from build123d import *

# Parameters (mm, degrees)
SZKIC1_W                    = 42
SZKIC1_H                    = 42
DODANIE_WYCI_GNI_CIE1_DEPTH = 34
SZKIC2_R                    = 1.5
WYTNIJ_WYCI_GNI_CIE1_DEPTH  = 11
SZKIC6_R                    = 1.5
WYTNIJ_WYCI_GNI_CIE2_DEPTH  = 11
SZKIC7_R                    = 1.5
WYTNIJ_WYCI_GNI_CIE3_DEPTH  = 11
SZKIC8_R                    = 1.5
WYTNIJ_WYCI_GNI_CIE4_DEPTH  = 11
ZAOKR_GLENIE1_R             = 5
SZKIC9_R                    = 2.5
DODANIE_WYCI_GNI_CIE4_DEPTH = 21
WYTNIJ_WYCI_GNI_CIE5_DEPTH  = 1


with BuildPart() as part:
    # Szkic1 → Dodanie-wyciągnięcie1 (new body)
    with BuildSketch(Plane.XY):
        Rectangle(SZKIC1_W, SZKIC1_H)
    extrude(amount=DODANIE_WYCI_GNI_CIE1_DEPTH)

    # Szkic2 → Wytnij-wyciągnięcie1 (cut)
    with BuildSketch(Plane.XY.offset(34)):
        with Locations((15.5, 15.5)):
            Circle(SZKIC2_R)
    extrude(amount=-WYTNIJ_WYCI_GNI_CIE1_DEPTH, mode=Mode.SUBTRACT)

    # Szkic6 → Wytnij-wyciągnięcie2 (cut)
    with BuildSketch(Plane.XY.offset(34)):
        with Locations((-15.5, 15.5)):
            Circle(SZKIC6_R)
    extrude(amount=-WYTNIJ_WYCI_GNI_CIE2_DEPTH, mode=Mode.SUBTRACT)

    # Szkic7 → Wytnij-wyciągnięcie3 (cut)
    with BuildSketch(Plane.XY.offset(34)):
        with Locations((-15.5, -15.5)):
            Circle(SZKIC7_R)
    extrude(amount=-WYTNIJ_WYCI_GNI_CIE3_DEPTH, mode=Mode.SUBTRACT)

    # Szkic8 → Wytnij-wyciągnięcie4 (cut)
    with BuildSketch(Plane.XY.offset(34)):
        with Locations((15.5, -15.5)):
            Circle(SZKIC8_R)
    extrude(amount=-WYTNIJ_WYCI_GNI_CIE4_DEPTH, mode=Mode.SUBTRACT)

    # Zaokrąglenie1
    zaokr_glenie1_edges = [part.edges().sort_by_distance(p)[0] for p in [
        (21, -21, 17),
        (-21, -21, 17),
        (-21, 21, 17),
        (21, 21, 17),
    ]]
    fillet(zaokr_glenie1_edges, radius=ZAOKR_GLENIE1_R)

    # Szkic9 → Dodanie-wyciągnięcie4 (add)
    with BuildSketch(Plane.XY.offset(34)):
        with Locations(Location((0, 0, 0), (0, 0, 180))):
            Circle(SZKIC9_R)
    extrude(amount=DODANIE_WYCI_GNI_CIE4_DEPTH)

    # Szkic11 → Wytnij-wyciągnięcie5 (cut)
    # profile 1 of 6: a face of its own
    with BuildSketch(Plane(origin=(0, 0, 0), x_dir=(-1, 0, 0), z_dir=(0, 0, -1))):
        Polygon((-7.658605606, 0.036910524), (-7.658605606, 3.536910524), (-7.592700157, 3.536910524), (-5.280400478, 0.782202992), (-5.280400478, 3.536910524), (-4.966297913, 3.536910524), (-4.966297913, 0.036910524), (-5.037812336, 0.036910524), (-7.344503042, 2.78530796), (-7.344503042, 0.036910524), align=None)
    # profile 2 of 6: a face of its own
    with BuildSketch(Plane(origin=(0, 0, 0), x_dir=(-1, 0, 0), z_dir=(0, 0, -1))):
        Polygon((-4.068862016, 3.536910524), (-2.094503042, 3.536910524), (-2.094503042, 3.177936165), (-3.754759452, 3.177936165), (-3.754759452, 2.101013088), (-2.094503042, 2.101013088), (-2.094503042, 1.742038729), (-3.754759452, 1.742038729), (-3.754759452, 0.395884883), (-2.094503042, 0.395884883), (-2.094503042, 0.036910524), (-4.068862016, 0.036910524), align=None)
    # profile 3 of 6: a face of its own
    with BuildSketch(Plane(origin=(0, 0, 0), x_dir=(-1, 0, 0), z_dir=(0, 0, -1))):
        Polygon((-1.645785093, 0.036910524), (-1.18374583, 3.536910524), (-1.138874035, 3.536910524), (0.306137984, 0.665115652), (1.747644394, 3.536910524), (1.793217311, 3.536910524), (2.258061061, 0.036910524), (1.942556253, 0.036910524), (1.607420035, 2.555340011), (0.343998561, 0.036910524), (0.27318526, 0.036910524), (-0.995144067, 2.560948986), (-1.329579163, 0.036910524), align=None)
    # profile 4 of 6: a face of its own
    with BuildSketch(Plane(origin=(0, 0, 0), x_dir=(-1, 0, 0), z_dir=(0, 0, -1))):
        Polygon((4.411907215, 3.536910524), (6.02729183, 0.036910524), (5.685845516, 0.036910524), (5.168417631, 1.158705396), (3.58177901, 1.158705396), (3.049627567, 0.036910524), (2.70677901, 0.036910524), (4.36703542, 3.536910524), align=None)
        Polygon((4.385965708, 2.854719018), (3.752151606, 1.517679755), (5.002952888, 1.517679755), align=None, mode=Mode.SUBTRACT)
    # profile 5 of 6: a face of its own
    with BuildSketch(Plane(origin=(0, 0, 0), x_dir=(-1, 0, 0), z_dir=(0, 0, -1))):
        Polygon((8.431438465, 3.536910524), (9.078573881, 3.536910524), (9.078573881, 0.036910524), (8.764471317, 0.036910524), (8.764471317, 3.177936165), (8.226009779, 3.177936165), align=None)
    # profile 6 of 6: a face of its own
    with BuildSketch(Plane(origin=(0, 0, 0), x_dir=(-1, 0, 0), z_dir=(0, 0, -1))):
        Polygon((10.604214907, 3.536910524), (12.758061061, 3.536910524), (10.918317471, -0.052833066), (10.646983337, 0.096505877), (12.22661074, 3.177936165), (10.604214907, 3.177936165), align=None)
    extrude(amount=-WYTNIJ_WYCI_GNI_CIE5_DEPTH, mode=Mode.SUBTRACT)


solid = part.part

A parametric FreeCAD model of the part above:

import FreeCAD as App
import Part
import Sketcher
Q = App.Units.Quantity


def edges_at(feature, points):
    """Names of the edges that pass closest to the given points."""
    edges = feature.Shape.Edges
    near = lambda p: min(range(len(edges)), key=lambda i: edges[i].distToShape(Part.Vertex(*p))[0])
    return sorted({f"Edge{near(p) + 1}" for p in points})

doc = App.newDocument("Part")
params = doc.addObject("Spreadsheet::Sheet", "Params")
for row, (alias, value) in enumerate([
    ("sketch1_width", "42 mm"),
    ("pad1_length", "34 mm"),
    ("sketch2_diameter", "3 mm"),
    ("pocket1_length", "11 mm"),
    ("sketch3_diameter", "3 mm"),
    ("pocket2_length", "11 mm"),
    ("sketch4_diameter", "3 mm"),
    ("pocket3_length", "11 mm"),
    ("sketch5_diameter", "3 mm"),
    ("pocket4_length", "11 mm"),
    ("fillet_radius", "5 mm"),
    ("sketch6_diameter", "5 mm"),
    ("pad2_length", "21 mm"),
    ("sketch7_height", "3.5 mm"),
    ("pocket5_length", "1 mm"),
], start=1):
    params.set(f"A{row}", alias)
    params.set(f"B{row}", "=" + value)
    params.setAlias(f"B{row}", alias)

body = doc.addObject("PartDesign::Body", "Body")

# Sketch on XY plane
sketch1 = body.newObject("Sketcher::SketchObject", "Sketch")
sketch1.AttachmentSupport = (doc.getObject("XY_Plane"), [""])
sketch1.MapMode = "FlatFace"
sketch1.addGeometry([
    Part.LineSegment(App.Vector(-21, 21, 0), App.Vector(-21, -21, 0)),
    Part.LineSegment(App.Vector(-21, -21, 0), App.Vector(21, -21, 0)),
    Part.LineSegment(App.Vector(21, -21, 0), App.Vector(21, 21, 0)),
    Part.LineSegment(App.Vector(21, 21, 0), App.Vector(-21, 21, 0)),
], False)
sketch1.addConstraint([
    Sketcher.Constraint("Coincident", 0, 2, 1, 1),
    Sketcher.Constraint("Coincident", 1, 2, 2, 1),
    Sketcher.Constraint("Coincident", 2, 2, 3, 1),
    Sketcher.Constraint("Coincident", 3, 2, 0, 1),
    Sketcher.Constraint("Vertical", 0),
    Sketcher.Constraint("Horizontal", 1),
    Sketcher.Constraint("Vertical", 2),
    Sketcher.Constraint("Horizontal", 3),
    Sketcher.Constraint("Symmetric", 0, 2, 2, 2, -1, 1),
    Sketcher.Constraint("Equal", 3, 0),
    Sketcher.Constraint("DistanceX", 1, 1, 1, 2, 42.0),
])
sketch1.setExpression("Constraints[10]", "Params.sketch1_width")
pad1 = body.newObject("PartDesign::Pad", "Pad")
pad1.Profile = sketch1
pad1.setExpression("Length", "Params.pad1_length")

# Sketch on XY plane
sketch2 = body.newObject("Sketcher::SketchObject", "Sketch001")
sketch2.AttachmentSupport = (doc.getObject("XY_Plane"), [""])
sketch2.MapMode = "FlatFace"
sketch2.AttachmentOffset = App.Placement(App.Vector(0, 0, 34), App.Rotation())
sketch2.addGeometry(Part.Circle(App.Vector(15.5, 15.5, 0), App.Vector(0, 0, 1), 1.5), False)
sketch2.addConstraint([
    Sketcher.Constraint("Diameter", 0, 3.0),
    Sketcher.Constraint("DistanceX", -1, 1, 0, 3, 15.5),
    Sketcher.Constraint("DistanceY", -1, 1, 0, 3, 15.5),
])
sketch2.setExpression("Constraints[0]", "Params.sketch2_diameter")
pocket1 = body.newObject("PartDesign::Pocket", "Pocket")
pocket1.Profile = sketch2
pocket1.setExpression("Length", "Params.pocket1_length")

# Sketch on XY plane
sketch3 = body.newObject("Sketcher::SketchObject", "Sketch002")
sketch3.AttachmentSupport = (doc.getObject("XY_Plane"), [""])
sketch3.MapMode = "FlatFace"
sketch3.AttachmentOffset = App.Placement(App.Vector(0, 0, 34), App.Rotation())
sketch3.addGeometry(Part.Circle(App.Vector(-15.5, 15.5, 0), App.Vector(0, 0, 1), 1.5), False)
sketch3.addConstraint([
    Sketcher.Constraint("Diameter", 0, 3.0),
    Sketcher.Constraint("DistanceX", 0, 3, -1, 1, 15.5),
    Sketcher.Constraint("DistanceY", -1, 1, 0, 3, 15.5),
])
sketch3.setExpression("Constraints[0]", "Params.sketch3_diameter")
pocket2 = body.newObject("PartDesign::Pocket", "Pocket001")
pocket2.Profile = sketch3
pocket2.setExpression("Length", "Params.pocket2_length")

# Sketch on XY plane
sketch4 = body.newObject("Sketcher::SketchObject", "Sketch003")
sketch4.AttachmentSupport = (doc.getObject("XY_Plane"), [""])
sketch4.MapMode = "FlatFace"
sketch4.AttachmentOffset = App.Placement(App.Vector(0, 0, 34), App.Rotation())
sketch4.addGeometry(Part.Circle(App.Vector(-15.5, -15.5, 0), App.Vector(0, 0, 1), 1.5), False)
sketch4.addConstraint([
    Sketcher.Constraint("Diameter", 0, 3.0),
    Sketcher.Constraint("DistanceX", 0, 3, -1, 1, 15.5),
    Sketcher.Constraint("DistanceY", 0, 3, -1, 1, 15.5),
])
sketch4.setExpression("Constraints[0]", "Params.sketch4_diameter")
pocket3 = body.newObject("PartDesign::Pocket", "Pocket002")
pocket3.Profile = sketch4
pocket3.setExpression("Length", "Params.pocket3_length")

# Sketch on XY plane
sketch5 = body.newObject("Sketcher::SketchObject", "Sketch004")
sketch5.AttachmentSupport = (doc.getObject("XY_Plane"), [""])
sketch5.MapMode = "FlatFace"
sketch5.AttachmentOffset = App.Placement(App.Vector(0, 0, 34), App.Rotation())
sketch5.addGeometry(Part.Circle(App.Vector(15.5, -15.5, 0), App.Vector(0, 0, 1), 1.5), False)
sketch5.addConstraint([
    Sketcher.Constraint("Diameter", 0, 3.0),
    Sketcher.Constraint("DistanceX", -1, 1, 0, 3, 15.5),
    Sketcher.Constraint("DistanceY", 0, 3, -1, 1, 15.5),
])
sketch5.setExpression("Constraints[0]", "Params.sketch5_diameter")
pocket4 = body.newObject("PartDesign::Pocket", "Pocket003")
pocket4.Profile = sketch5
pocket4.setExpression("Length", "Params.pocket4_length")
doc.recompute()

fillet = body.newObject("PartDesign::Fillet", "Fillet")
fillet.Base = (pocket4, edges_at(pocket4, [
    (21, -21, 17),
    (-21, -21, 17),
    (-21, 21, 17),
    (21, 21, 17),
]))
fillet.setExpression("Radius", "Params.fillet_radius")

# Sketch on XY plane
sketch6 = body.newObject("Sketcher::SketchObject", "Sketch005")
sketch6.AttachmentSupport = (doc.getObject("XY_Plane"), [""])
sketch6.MapMode = "FlatFace"
sketch6.AttachmentOffset = App.Placement(App.Vector(0, 0, 34), App.Rotation())
sketch6.addGeometry(Part.Circle(App.Vector(0, 0, 0), App.Vector(0, 0, 1), 2.5), False)
sketch6.addConstraint([
    Sketcher.Constraint("Coincident", 0, 3, -1, 1),
    Sketcher.Constraint("Diameter", 0, 5.0),
])
sketch6.setExpression("Constraints[1]", "Params.sketch6_diameter")
pad2 = body.newObject("PartDesign::Pad", "Pad001")
pad2.Profile = sketch6
pad2.setExpression("Length", "Params.pad2_length")

# Sketch on XY plane
sketch7 = body.newObject("Sketcher::SketchObject", "Sketch006")
sketch7.AttachmentSupport = (doc.getObject("XY_Plane"), [""])
sketch7.MapMode = "FlatFace"
sketch7.addGeometry([
    Part.LineSegment(App.Vector(7.658606, 3.536911, 0), App.Vector(7.658606, 0.036911, 0)),  # 0
    Part.LineSegment(App.Vector(7.658606, 0.036911, 0), App.Vector(7.344503, 0.036911, 0)),  # 1
    Part.LineSegment(App.Vector(7.344503, 0.036911, 0), App.Vector(7.344503, 2.785308, 0)),  # 2
    Part.LineSegment(App.Vector(7.344503, 2.785308, 0), App.Vector(5.037812, 0.036911, 0)),  # 3
    Part.LineSegment(App.Vector(5.037812, 0.036911, 0), App.Vector(4.966298, 0.036911, 0)),  # 4
    Part.LineSegment(App.Vector(4.966298, 0.036911, 0), App.Vector(4.966298, 3.536911, 0)),  # 5
    Part.LineSegment(App.Vector(4.966298, 3.536911, 0), App.Vector(5.2804, 3.536911, 0)),  # 6
    Part.LineSegment(App.Vector(5.2804, 3.536911, 0), App.Vector(5.2804, 0.782203, 0)),  # 7
    Part.LineSegment(App.Vector(5.2804, 0.782203, 0), App.Vector(7.5927, 3.536911, 0)),  # 8
    Part.LineSegment(App.Vector(7.5927, 3.536911, 0), App.Vector(7.658606, 3.536911, 0)),  # 9
    Part.LineSegment(App.Vector(2.094503, 3.536911, 0), App.Vector(4.068862, 3.536911, 0)),  # 10
    Part.LineSegment(App.Vector(4.068862, 3.536911, 0), App.Vector(4.068862, 0.036911, 0)),  # 11
    Part.LineSegment(App.Vector(4.068862, 0.036911, 0), App.Vector(2.094503, 0.036911, 0)),  # 12
    Part.LineSegment(App.Vector(2.094503, 0.036911, 0), App.Vector(2.094503, 0.395885, 0)),  # 13
    Part.LineSegment(App.Vector(2.094503, 0.395885, 0), App.Vector(3.754759, 0.395885, 0)),  # 14
    Part.LineSegment(App.Vector(3.754759, 0.395885, 0), App.Vector(3.754759, 1.742039, 0)),  # 15
    Part.LineSegment(App.Vector(3.754759, 1.742039, 0), App.Vector(2.094503, 1.742039, 0)),  # 16
    Part.LineSegment(App.Vector(2.094503, 1.742039, 0), App.Vector(2.094503, 2.101013, 0)),  # 17
    Part.LineSegment(App.Vector(2.094503, 2.101013, 0), App.Vector(3.754759, 2.101013, 0)),  # 18
    Part.LineSegment(App.Vector(3.754759, 2.101013, 0), App.Vector(3.754759, 3.177936, 0)),  # 19
    Part.LineSegment(App.Vector(3.754759, 3.177936, 0), App.Vector(2.094503, 3.177936, 0)),  # 20
    Part.LineSegment(App.Vector(2.094503, 3.177936, 0), App.Vector(2.094503, 3.536911, 0)),  # 21
    Part.LineSegment(App.Vector(1.183746, 3.536911, 0), App.Vector(1.645785, 0.036911, 0)),  # 22
    Part.LineSegment(App.Vector(1.645785, 0.036911, 0), App.Vector(1.329579, 0.036911, 0)),  # 23
    Part.LineSegment(App.Vector(1.329579, 0.036911, 0), App.Vector(0.995144, 2.560949, 0)),  # 24
    Part.LineSegment(App.Vector(0.995144, 2.560949, 0), App.Vector(-0.273185, 0.036911, 0)),  # 25
    Part.LineSegment(App.Vector(-0.273185, 0.036911, 0), App.Vector(-0.343999, 0.036911, 0)),  # 26
    Part.LineSegment(App.Vector(-0.343999, 0.036911, 0), App.Vector(-1.60742, 2.55534, 0)),  # 27
    Part.LineSegment(App.Vector(-1.60742, 2.55534, 0), App.Vector(-1.942556, 0.036911, 0)),  # 28
    Part.LineSegment(App.Vector(-1.942556, 0.036911, 0), App.Vector(-2.258061, 0.036911, 0)),  # 29
    Part.LineSegment(App.Vector(-2.258061, 0.036911, 0), App.Vector(-1.793217, 3.536911, 0)),  # 30
    Part.LineSegment(App.Vector(-1.793217, 3.536911, 0), App.Vector(-1.747644, 3.536911, 0)),  # 31
    Part.LineSegment(App.Vector(-1.747644, 3.536911, 0), App.Vector(-0.306138, 0.665116, 0)),  # 32
    Part.LineSegment(App.Vector(-0.306138, 0.665116, 0), App.Vector(1.138874, 3.536911, 0)),  # 33
    Part.LineSegment(App.Vector(1.138874, 3.536911, 0), App.Vector(1.183746, 3.536911, 0)),  # 34
    Part.LineSegment(App.Vector(-6.027292, 0.036911, 0), App.Vector(-4.411907, 3.536911, 0)),  # 35
    Part.LineSegment(App.Vector(-4.411907, 3.536911, 0), App.Vector(-4.367035, 3.536911, 0)),  # 36
    Part.LineSegment(App.Vector(-4.367035, 3.536911, 0), App.Vector(-2.706779, 0.036911, 0)),  # 37
    Part.LineSegment(App.Vector(-2.706779, 0.036911, 0), App.Vector(-3.049628, 0.036911, 0)),  # 38
    Part.LineSegment(App.Vector(-3.049628, 0.036911, 0), App.Vector(-3.581779, 1.158705, 0)),  # 39
    Part.LineSegment(App.Vector(-3.581779, 1.158705, 0), App.Vector(-5.168418, 1.158705, 0)),  # 40
    Part.LineSegment(App.Vector(-5.168418, 1.158705, 0), App.Vector(-5.685846, 0.036911, 0)),  # 41
    Part.LineSegment(App.Vector(-5.685846, 0.036911, 0), App.Vector(-6.027292, 0.036911, 0)),  # 42
    Part.LineSegment(App.Vector(-4.385966, 2.854719, 0), App.Vector(-5.002953, 1.51768, 0)),  # 43
    Part.LineSegment(App.Vector(-5.002953, 1.51768, 0), App.Vector(-3.752152, 1.51768, 0)),  # 44
    Part.LineSegment(App.Vector(-3.752152, 1.51768, 0), App.Vector(-4.385966, 2.854719, 0)),  # 45
    Part.LineSegment(App.Vector(-9.078574, 3.536911, 0), App.Vector(-8.431438, 3.536911, 0)),  # 46
    Part.LineSegment(App.Vector(-8.431438, 3.536911, 0), App.Vector(-8.22601, 3.177936, 0)),  # 47
    Part.LineSegment(App.Vector(-8.22601, 3.177936, 0), App.Vector(-8.764471, 3.177936, 0)),  # 48
    Part.LineSegment(App.Vector(-8.764471, 3.177936, 0), App.Vector(-8.764471, 0.036911, 0)),  # 49
    Part.LineSegment(App.Vector(-8.764471, 0.036911, 0), App.Vector(-9.078574, 0.036911, 0)),  # 50
    Part.LineSegment(App.Vector(-9.078574, 0.036911, 0), App.Vector(-9.078574, 3.536911, 0)),  # 51
    Part.LineSegment(App.Vector(-12.758061, 3.536911, 0), App.Vector(-10.604215, 3.536911, 0)),  # 52
    Part.LineSegment(App.Vector(-10.604215, 3.536911, 0), App.Vector(-10.604215, 3.177936, 0)),  # 53
    Part.LineSegment(App.Vector(-10.604215, 3.177936, 0), App.Vector(-12.226611, 3.177936, 0)),  # 54
    Part.LineSegment(App.Vector(-12.226611, 3.177936, 0), App.Vector(-10.646983, 0.096506, 0)),  # 55
    Part.LineSegment(App.Vector(-10.646983, 0.096506, 0), App.Vector(-10.918317, -0.052833, 0)),  # 56
    Part.LineSegment(App.Vector(-10.918317, -0.052833, 0), App.Vector(-12.758061, 3.536911, 0)),  # 57
], False)
sketch7.addConstraint([
    Sketcher.Constraint("Coincident", 0, 2, 1, 1),
    Sketcher.Constraint("Coincident", 1, 2, 2, 1),
    Sketcher.Constraint("Coincident", 2, 2, 3, 1),
    Sketcher.Constraint("Coincident", 3, 2, 4, 1),
    Sketcher.Constraint("Coincident", 4, 2, 5, 1),
    Sketcher.Constraint("Coincident", 5, 2, 6, 1),
    Sketcher.Constraint("Coincident", 6, 2, 7, 1),
    Sketcher.Constraint("Coincident", 7, 2, 8, 1),
    Sketcher.Constraint("Coincident", 8, 2, 9, 1),
    Sketcher.Constraint("Coincident", 9, 2, 0, 1),
    Sketcher.Constraint("Coincident", 10, 2, 11, 1),
    Sketcher.Constraint("Coincident", 11, 2, 12, 1),
    Sketcher.Constraint("Coincident", 12, 2, 13, 1),
    Sketcher.Constraint("Coincident", 13, 2, 14, 1),
    Sketcher.Constraint("Coincident", 14, 2, 15, 1),
    Sketcher.Constraint("Coincident", 15, 2, 16, 1),
    Sketcher.Constraint("Coincident", 16, 2, 17, 1),
    Sketcher.Constraint("Coincident", 17, 2, 18, 1),
    Sketcher.Constraint("Coincident", 18, 2, 19, 1),
    Sketcher.Constraint("Coincident", 19, 2, 20, 1),
    Sketcher.Constraint("Coincident", 20, 2, 21, 1),
    Sketcher.Constraint("Coincident", 21, 2, 10, 1),
    Sketcher.Constraint("Coincident", 22, 2, 23, 1),
    Sketcher.Constraint("Coincident", 23, 2, 24, 1),
    Sketcher.Constraint("Coincident", 24, 2, 25, 1),
    Sketcher.Constraint("Coincident", 25, 2, 26, 1),
    Sketcher.Constraint("Coincident", 26, 2, 27, 1),
    Sketcher.Constraint("Coincident", 27, 2, 28, 1),
    Sketcher.Constraint("Coincident", 28, 2, 29, 1),
    Sketcher.Constraint("Coincident", 29, 2, 30, 1),
    Sketcher.Constraint("Coincident", 30, 2, 31, 1),
    Sketcher.Constraint("Coincident", 31, 2, 32, 1),
    Sketcher.Constraint("Coincident", 32, 2, 33, 1),
    Sketcher.Constraint("Coincident", 33, 2, 34, 1),
    Sketcher.Constraint("Coincident", 34, 2, 22, 1),
    Sketcher.Constraint("Coincident", 35, 2, 36, 1),
    Sketcher.Constraint("Coincident", 36, 2, 37, 1),
    Sketcher.Constraint("Coincident", 37, 2, 38, 1),
    Sketcher.Constraint("Coincident", 38, 2, 39, 1),
    Sketcher.Constraint("Coincident", 39, 2, 40, 1),
    Sketcher.Constraint("Coincident", 40, 2, 41, 1),
    Sketcher.Constraint("Coincident", 41, 2, 42, 1),
    Sketcher.Constraint("Coincident", 42, 2, 35, 1),
    Sketcher.Constraint("Coincident", 43, 2, 44, 1),
    Sketcher.Constraint("Coincident", 44, 2, 45, 1),
    Sketcher.Constraint("Coincident", 45, 2, 43, 1),
    Sketcher.Constraint("Coincident", 46, 2, 47, 1),
    Sketcher.Constraint("Coincident", 47, 2, 48, 1),
    Sketcher.Constraint("Coincident", 48, 2, 49, 1),
    Sketcher.Constraint("Coincident", 49, 2, 50, 1),
    Sketcher.Constraint("Coincident", 50, 2, 51, 1),
    Sketcher.Constraint("Coincident", 51, 2, 46, 1),
    Sketcher.Constraint("Coincident", 52, 2, 53, 1),
    Sketcher.Constraint("Coincident", 53, 2, 54, 1),
    Sketcher.Constraint("Coincident", 54, 2, 55, 1),
    Sketcher.Constraint("Coincident", 55, 2, 56, 1),
    Sketcher.Constraint("Coincident", 56, 2, 57, 1),
    Sketcher.Constraint("Coincident", 57, 2, 52, 1),
    Sketcher.Constraint("Vertical", 0),
    Sketcher.Constraint("Horizontal", 1),
    Sketcher.Constraint("Vertical", 2),
    Sketcher.Constraint("Horizontal", 4),
    Sketcher.Constraint("Vertical", 5),
    Sketcher.Constraint("Horizontal", 6),
    Sketcher.Constraint("Vertical", 7),
    Sketcher.Constraint("Horizontal", 9),
    Sketcher.Constraint("Horizontal", 10),
    Sketcher.Constraint("Vertical", 11),
    Sketcher.Constraint("Horizontal", 12),
    Sketcher.Constraint("Vertical", 13),
    Sketcher.Constraint("Horizontal", 14),
    Sketcher.Constraint("Vertical", 15),
    Sketcher.Constraint("Horizontal", 16),
    Sketcher.Constraint("Vertical", 17),
    Sketcher.Constraint("Horizontal", 18),
    Sketcher.Constraint("Vertical", 19),
    Sketcher.Constraint("Horizontal", 20),
    Sketcher.Constraint("Vertical", 21),
    Sketcher.Constraint("Horizontal", 23),
    Sketcher.Constraint("Horizontal", 26),
    Sketcher.Constraint("Horizontal", 29),
    Sketcher.Constraint("Horizontal", 31),
    Sketcher.Constraint("Horizontal", 34),
    Sketcher.Constraint("Horizontal", 36),
    Sketcher.Constraint("Horizontal", 38),
    Sketcher.Constraint("Horizontal", 40),
    Sketcher.Constraint("Horizontal", 42),
    Sketcher.Constraint("Horizontal", 44),
    Sketcher.Constraint("Horizontal", 46),
    Sketcher.Constraint("Horizontal", 48),
    Sketcher.Constraint("Vertical", 49),
    Sketcher.Constraint("Horizontal", 50),
    Sketcher.Constraint("Vertical", 51),
    Sketcher.Constraint("Horizontal", 52),
    Sketcher.Constraint("Vertical", 53),
    Sketcher.Constraint("Horizontal", 54),
    Sketcher.Constraint("Horizontal", 1, 2, 3, 2),
    Sketcher.Constraint("Horizontal", 6, 2, 8, 2),
    Sketcher.Constraint("Horizontal", 9, 2, 10, 2),
    Sketcher.Constraint("Horizontal", 4, 2, 11, 2),
    Sketcher.Constraint("Horizontal", 12, 2, 22, 2),
    Sketcher.Constraint("Horizontal", 23, 2, 25, 2),
    Sketcher.Constraint("Horizontal", 26, 2, 28, 2),
    Sketcher.Constraint("Horizontal", 21, 2, 30, 2),
    Sketcher.Constraint("Horizontal", 31, 2, 33, 2),
    Sketcher.Constraint("Horizontal", 34, 2, 35, 2),
    Sketcher.Constraint("Horizontal", 29, 2, 37, 2),
    Sketcher.Constraint("Horizontal", 38, 2, 41, 2),
    Sketcher.Constraint("Horizontal", 36, 2, 46, 2),
    Sketcher.Constraint("Horizontal", 20, 2, 47, 2),
    Sketcher.Constraint("Horizontal", 42, 2, 49, 2),
    Sketcher.Constraint("Horizontal", 51, 2, 52, 2),
    Sketcher.Constraint("Horizontal", 48, 2, 53, 2),
    Sketcher.Constraint("Vertical", 13, 2, 16, 2),
    Sketcher.Constraint("Vertical", 15, 2, 18, 2),
    Sketcher.Constraint("Vertical", 17, 2, 20, 2),
    Sketcher.Constraint("Equal", 1, 6),
    Sketcher.Constraint("Equal", 34, 36),
    Sketcher.Constraint("Equal", 6, 50),
    Sketcher.Constraint("Equal", 13, 17),
    Sketcher.Constraint("Equal", 17, 21),
    Sketcher.Constraint("DistanceY", 0, 2, 0, 1, 3.5),
    Sketcher.Constraint("Angle", 28, Q("-97.580015 deg")),
    Sketcher.Constraint("DistanceX", 44, 1, 44, 2, 1.250801),
    Sketcher.Constraint("DistanceX", 26, 2, -1, 1, 0.343999),
    Sketcher.Constraint("DistanceX", 39, 2, 37, 2, 0.875),
    Sketcher.Constraint("Distance", 24, 2.546098),
    Sketcher.Constraint("Distance", 47, 0.413598),
    Sketcher.Constraint("DistanceX", 10, 1, 10, 2, 1.974359),
    Sketcher.Constraint("DistanceX", 34, 1, 34, 2, 0.044872),
    Sketcher.Constraint("DistanceX", 38, 2, 38, 1, 0.342849),
    Sketcher.Constraint("DistanceX", 40, 2, 40, 1, 1.586639),
    Sketcher.Constraint("DistanceX", 48, 2, 48, 1, 0.538462),
    Sketcher.Constraint("DistanceX", -1, 1, 6, 2, 5.2804),
    Sketcher.Constraint("DistanceX", -1, 1, 8, 2, 7.5927),
    Sketcher.Constraint("DistanceX", 26, 2, 12, 2, 2.438502),
    Sketcher.Constraint("DistanceX", 24, 2, 34, 2, 0.188602),
    Sketcher.Constraint("Distance", 25, 2.824788),
    Sketcher.Constraint("Distance", 28, 2.540631),
    Sketcher.Constraint("Distance", 33, 3.214851),
    Sketcher.Constraint("Distance", 43, 1.472531),
    Sketcher.Constraint("Distance", 45, 1.47966),
    Sketcher.Constraint("Distance", 55, 3.462721),
    Sketcher.Constraint("DistanceX", 1, 2, 1, 1, 0.314103),
    Sketcher.Constraint("DistanceX", 4, 2, 4, 1, 0.071514),
    Sketcher.Constraint("DistanceX", 9, 1, 9, 2, 0.065905),
    Sketcher.Constraint("DistanceX", 14, 1, 14, 2, 1.660256),
    Sketcher.Constraint("DistanceX", 23, 2, 23, 1, 0.316206),
    Sketcher.Constraint("DistanceX", 26, 2, 26, 1, 0.070813),
    Sketcher.Constraint("DistanceX", 29, 2, 29, 1, 0.315505),
    Sketcher.Constraint("DistanceX", 31, 1, 31, 2, 0.045573),
    Sketcher.Constraint("DistanceX", 42, 2, 42, 1, 0.341446),
    Sketcher.Constraint("DistanceX", 46, 1, 46, 2, 0.647135),
    Sketcher.Constraint("DistanceX", 52, 1, 52, 2, 2.153846),
    Sketcher.Constraint("DistanceX", 54, 2, 54, 1, 1.622396),
    Sketcher.Constraint("DistanceY", 2, 1, 2, 2, 2.748397),
    Sketcher.Constraint("DistanceY", 7, 2, 7, 1, 2.754708),
    Sketcher.Constraint("DistanceY", 15, 1, 15, 2, 1.346154),
    Sketcher.Constraint("DistanceY", -1, 1, 0, 2, 0.036911),
    Sketcher.Constraint("DistanceX", -1, 1, 23, 2, 1.329579),
    Sketcher.Constraint("DistanceX", 27, 2, -1, 1, 1.60742),
    Sketcher.Constraint("DistanceX", 37, 2, -1, 1, 2.706779),
    Sketcher.Constraint("DistanceX", 42, 2, -1, 1, 6.027292),
    Sketcher.Constraint("DistanceY", -1, 1, 43, 2, 1.51768),
    Sketcher.Constraint("DistanceX", 44, 2, -1, 1, 3.752152),
    Sketcher.Constraint("DistanceX", 46, 2, -1, 1, 8.431438),
    Sketcher.Constraint("DistanceX", 54, 2, -1, 1, 12.226611),
    Sketcher.Constraint("DistanceX", 30, 2, 24, 2, 2.788361),
    Sketcher.Constraint("DistanceX", 26, 2, 32, 2, 0.037861),
    Sketcher.Constraint("DistanceX", 35, 2, 30, 2, 2.61869),
    Sketcher.Constraint("DistanceY", 40, 2, 47, 2, 2.019231),
    Sketcher.Constraint("DistanceX", 55, 2, 50, 2, 1.568409),
    Sketcher.Constraint("DistanceY", 56, 2, 55, 2, 0.149339),
    Sketcher.Constraint("Distance", 56, 0.309717),
])
sketch7.setExpression("Constraints[121]", "Params.sketch7_height")
pocket5 = body.newObject("PartDesign::Pocket", "Pocket004")
pocket5.Profile = sketch7
pocket5.setExpression("Length", "Params.pocket5_length")
pocket5.Reversed = True

doc.recompute()
